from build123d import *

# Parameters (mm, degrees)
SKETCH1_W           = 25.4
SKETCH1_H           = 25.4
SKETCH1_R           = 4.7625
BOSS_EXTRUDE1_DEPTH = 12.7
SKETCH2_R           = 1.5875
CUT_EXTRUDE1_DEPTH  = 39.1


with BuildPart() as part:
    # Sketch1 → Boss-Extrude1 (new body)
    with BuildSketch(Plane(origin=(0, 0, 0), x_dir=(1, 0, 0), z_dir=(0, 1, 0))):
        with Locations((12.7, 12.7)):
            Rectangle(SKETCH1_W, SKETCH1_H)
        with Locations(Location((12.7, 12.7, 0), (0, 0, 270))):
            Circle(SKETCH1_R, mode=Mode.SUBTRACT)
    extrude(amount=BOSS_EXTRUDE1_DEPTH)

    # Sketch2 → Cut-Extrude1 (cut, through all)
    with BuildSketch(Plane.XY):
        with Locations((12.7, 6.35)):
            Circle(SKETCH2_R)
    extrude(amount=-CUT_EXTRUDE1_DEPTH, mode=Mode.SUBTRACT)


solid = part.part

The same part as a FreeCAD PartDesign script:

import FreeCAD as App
import Part
import Sketcher
Q = App.Units.Quantity


def add_polygon(sketch, points):
    """Adds a closed chain of lines whose ends are joined by coincident constraints."""
    first, n = sketch.GeometryCount, len(points)
    for a, b in zip(points, points[1:] + points[:1]):
        sketch.addGeometry(Part.LineSegment(App.Vector(*a, 0), App.Vector(*b, 0)), False)
    for i in range(n):
        sketch.addConstraint(Sketcher.Constraint("Coincident", first + i, 2, first + (i + 1) % n, 1))

doc = App.newDocument("Part")
params = doc.addObject("Spreadsheet::Sheet", "Params")
for row, (alias, value) in enumerate([
    ("sketch1_width", "1 in"),
    ("sketch1_diameter", "0.375 in"),
    ("pad1_length", "0.5 in"),
    ("sketch2_diameter", "0.125 in"),
], start=1):
    params.set(f"A{row}", alias)
    params.set(f"B{row}", "=" + value)
    params.setAlias(f"B{row}", alias)

body = doc.addObject("PartDesign::Body", "Body")

sketch1 = body.newObject("Sketcher::SketchObject", "Sketch")
sketch1.AttachmentSupport = (doc.getObject("XZ_Plane"), [""])
sketch1.MapMode = "FlatFace"
add_polygon(sketch1, [(0, -25.4), (0, 0), (25.4, 0), (25.4, -25.4)])
sketch1.addGeometry(Part.Circle(App.Vector(12.7, -12.7, 0), App.Vector(0, 0, 1), 4.8), False)
sketch1.addConstraint(Sketcher.Constraint("Vertical", 0))
sketch1.addConstraint(Sketcher.Constraint("Horizontal", 1))
sketch1.addConstraint(Sketcher.Constraint("Vertical", 2))
sketch1.addConstraint(Sketcher.Constraint("Horizontal", 3))
sketch1.addConstraint(Sketcher.Constraint("Coincident", 0, 2, -1, 1))
sketch1.addConstraint(Sketcher.Constraint("Equal", 3, 0))
sketch1.addConstraint(Sketcher.Constraint("DistanceX", 1, 1, 1, 2, Q("1 in")))
sketch1.addConstraint(Sketcher.Constraint("Diameter", 4, Q("0.375 in")))
sketch1.addConstraint(Sketcher.Constraint("DistanceX", -1, 1, 4, 3, Q("0.5 in")))
sketch1.addConstraint(Sketcher.Constraint("DistanceY", 4, 3, -1, 1, Q("0.5 in")))
sketch1.setExpression("Constraints[10]", "Params.sketch1_width")
sketch1.setExpression("Constraints[11]", "Params.sketch1_diameter")
pad1 = body.newObject("PartDesign::Pad", "Pad")
pad1.Profile = sketch1
pad1.setExpression("Length", "Params.pad1_length")
pad1.Reversed = True

sketch2 = body.newObject("Sketcher::SketchObject", "Sketch001")
sketch2.AttachmentSupport = (doc.getObject("XY_Plane"), [""])
sketch2.MapMode = "FlatFace"
sketch2.addGeometry(Part.Circle(App.Vector(12.7, 6.3, 0), App.Vector(0, 0, 1), 1.6), False)
sketch2.addConstraint(Sketcher.Constraint("Diameter", 0, Q("0.125 in")))
sketch2.addConstraint(Sketcher.Constraint("DistanceX", -1, 1, 0, 3, Q("0.5 in")))
sketch2.addConstraint(Sketcher.Constraint("DistanceY", -1, 1, 0, 3, Q("0.25 in")))
sketch2.setExpression("Constraints[0]", "Params.sketch2_diameter")
pocket1 = body.newObject("PartDesign::Pocket", "Pocket")
pocket1.Profile = sketch2
pocket1.Type = "ThroughAll"

doc.recompute()
